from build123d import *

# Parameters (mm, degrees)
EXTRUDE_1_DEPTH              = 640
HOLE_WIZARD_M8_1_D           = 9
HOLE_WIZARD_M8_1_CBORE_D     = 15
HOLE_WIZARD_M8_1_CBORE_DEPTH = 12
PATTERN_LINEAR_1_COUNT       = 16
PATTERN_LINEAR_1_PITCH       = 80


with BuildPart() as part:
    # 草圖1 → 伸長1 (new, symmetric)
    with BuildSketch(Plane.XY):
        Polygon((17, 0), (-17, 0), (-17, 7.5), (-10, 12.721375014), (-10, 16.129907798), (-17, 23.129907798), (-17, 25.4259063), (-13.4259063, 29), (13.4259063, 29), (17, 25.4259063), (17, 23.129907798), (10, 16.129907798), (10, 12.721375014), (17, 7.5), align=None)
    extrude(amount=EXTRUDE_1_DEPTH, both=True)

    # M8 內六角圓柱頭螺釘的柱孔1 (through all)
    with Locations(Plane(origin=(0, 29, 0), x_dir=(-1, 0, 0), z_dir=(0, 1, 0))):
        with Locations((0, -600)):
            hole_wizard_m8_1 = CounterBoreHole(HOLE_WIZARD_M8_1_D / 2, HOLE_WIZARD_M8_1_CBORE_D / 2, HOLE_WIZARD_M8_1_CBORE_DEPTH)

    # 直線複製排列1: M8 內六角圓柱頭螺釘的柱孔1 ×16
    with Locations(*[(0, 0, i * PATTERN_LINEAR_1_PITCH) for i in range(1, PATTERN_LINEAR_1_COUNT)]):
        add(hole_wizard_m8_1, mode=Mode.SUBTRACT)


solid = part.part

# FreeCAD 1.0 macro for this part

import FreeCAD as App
import Part
import Sketcher

doc = App.newDocument("Part")
body = doc.addObject("PartDesign::Body", "Body")

sketch1 = body.newObject("Sketcher::SketchObject", "Sketch")
sketch1.AttachmentSupport = (doc.getObject("XY_Plane"), [""])
sketch1.MapMode = "FlatFace"
sketch1.addGeometry([
    Part.LineSegment(App.Vector(-17, 0, 0), App.Vector(17, 0, 0)),
    Part.LineSegment(App.Vector(17, 0, 0), App.Vector(17, 7.5, 0)),
    Part.LineSegment(App.Vector(17, 7.5, 0), App.Vector(10, 12.7, 0)),
    Part.LineSegment(App.Vector(10, 12.7, 0), App.Vector(10, 16.1, 0)),
    Part.LineSegment(App.Vector(10, 16.1, 0), App.Vector(17, 23.1, 0)),
    Part.LineSegment(App.Vector(17, 23.1, 0), App.Vector(17, 25.4, 0)),
    Part.LineSegment(App.Vector(17, 25.4, 0), App.Vector(13.4, 29, 0)),
    Part.LineSegment(App.Vector(13.4, 29, 0), App.Vector(-13.4, 29, 0)),
    Part.LineSegment(App.Vector(-13.4, 29, 0), App.Vector(-17, 25.4, 0)),
    Part.LineSegment(App.Vector(-17, 25.4, 0), App.Vector(-17, 23.1, 0)),
    Part.LineSegment(App.Vector(-17, 23.1, 0), App.Vector(-10, 16.1, 0)),
    Part.LineSegment(App.Vector(-10, 16.1, 0), App.Vector(-10, 12.7, 0)),
    Part.LineSegment(App.Vector(-10, 12.7, 0), App.Vector(-17, 7.5, 0)),
    Part.LineSegment(App.Vector(-17, 7.5, 0), App.Vector(-17, 0, 0)),
], False)
sketch1.addConstraint([
    Sketcher.Constraint("Coincident", 0, 2, 1, 1),
    Sketcher.Constraint("Coincident", 1, 2, 2, 1),
    Sketcher.Constraint("Coincident", 2, 2, 3, 1),
    Sketcher.Constraint("Coincident", 3, 2, 4, 1),
    Sketcher.Constraint("Coincident", 4, 2, 5, 1),
    Sketcher.Constraint("Coincident", 5, 2, 6, 1),
    Sketcher.Constraint("Coincident", 6, 2, 7, 1),
    Sketcher.Constraint("Coincident", 7, 2, 8, 1),
    Sketcher.Constraint("Coincident", 8, 2, 9, 1),
    Sketcher.Constraint("Coincident", 9, 2, 10, 1),
    Sketcher.Constraint("Coincident", 10, 2, 11, 1),
    Sketcher.Constraint("Coincident", 11, 2, 12, 1),
    Sketcher.Constraint("Coincident", 12, 2, 13, 1),
    Sketcher.Constraint("Coincident", 13, 2, 0, 1),
    Sketcher.Constraint("Horizontal", 0),
    Sketcher.Constraint("Vertical", 1),
    Sketcher.Constraint("Vertical", 3),
    Sketcher.Constraint("Vertical", 5),
    Sketcher.Constraint("Horizontal", 7),
    Sketcher.Constraint("Vertical", 9),
    Sketcher.Constraint("Vertical", 11),
    Sketcher.Constraint("Vertical", 13),
    Sketcher.Constraint("Symmetric", 0, 2, 13, 2, -1, 1),
    Sketcher.Constraint("Symmetric", 5, 2, 8, 2, -2),
    Sketcher.Constraint("Symmetric", 3, 2, 10, 2, -2),
    Sketcher.Constraint("Perpendicular", 4, 6),
    Sketcher.Constraint("Perpendicular", 6, 8),
    Sketcher.Constraint("Perpendicular", 8, 10),
    Sketcher.Constraint("Horizontal", 4, 2, 9, 2),
    Sketcher.Constraint("Horizontal", 2, 2, 11, 2),
    Sketcher.Constraint("Horizontal", 1, 2, 12, 2),
    Sketcher.Constraint("Vertical", 1, 2, 4, 2),
    Sketcher.Constraint("DistanceX", 0, 1, 0, 2, 34.0),
    Sketcher.Constraint("DistanceY", 1, 1, 1, 2, 7.5),
    Sketcher.Constraint("DistanceX", -1, 1, 2, 2, 10.0),
    Sketcher.Constraint("DistanceY", -1, 1, 6, 2, 29.0),
    Sketcher.Constraint("DistanceY", 5, 1, 5, 2, 2.295999),
    Sketcher.Constraint("Distance", 6, 5.054532),
    Sketcher.Constraint("DistanceY", 3, 1, 3, 2, 3.408533),
])
pad1 = body.newObject("PartDesign::Pad", "Pad")
pad1.Profile = sketch1
pad1.Length = 1280
pad1.Midplane = True

sketch2 = body.newObject("Sketcher::SketchObject", "Sketch001")
sketch2.AttachmentSupport = (doc.getObject("XZ_Plane"), [""])
sketch2.MapMode = "FlatFace"
sketch2.AttachmentOffset = App.Placement(App.Vector(0, 0, -29), App.Rotation())
sketch2.addGeometry(Part.Circle(App.Vector(0, -600, 0), App.Vector(0, 0, 1), 4.5), False)
sketch2.addConstraint([
    Sketcher.Constraint("PointOnObject", 0, 3, -2),
    Sketcher.Constraint("Diameter", 0, 9.0),
    Sketcher.Constraint("DistanceY", 0, 3, -1, 1, 600.0),
])
doc.recompute()
hole = body.newObject("PartDesign::Hole", "Hole")
hole.Profile = sketch2
hole.ThreadType = "None"
hole.Diameter = 9
hole.DepthType = "ThroughAll"
hole.HoleCutType = "Counterbore"
hole.HoleCutDiameter = 15
hole.HoleCutDepth = 12
hole.Reversed = True
doc.recompute()

linearpattern = body.newObject("PartDesign::LinearPattern", "LinearPattern")
linearpattern.Originals = [hole]
linearpattern.Direction = (doc.getObject("Z_Axis"), [""])
linearpattern.Mode = "offset"
linearpattern.Offset = 80
linearpattern.Occurrences = 16
body.Tip = linearpattern

doc.recompute()
